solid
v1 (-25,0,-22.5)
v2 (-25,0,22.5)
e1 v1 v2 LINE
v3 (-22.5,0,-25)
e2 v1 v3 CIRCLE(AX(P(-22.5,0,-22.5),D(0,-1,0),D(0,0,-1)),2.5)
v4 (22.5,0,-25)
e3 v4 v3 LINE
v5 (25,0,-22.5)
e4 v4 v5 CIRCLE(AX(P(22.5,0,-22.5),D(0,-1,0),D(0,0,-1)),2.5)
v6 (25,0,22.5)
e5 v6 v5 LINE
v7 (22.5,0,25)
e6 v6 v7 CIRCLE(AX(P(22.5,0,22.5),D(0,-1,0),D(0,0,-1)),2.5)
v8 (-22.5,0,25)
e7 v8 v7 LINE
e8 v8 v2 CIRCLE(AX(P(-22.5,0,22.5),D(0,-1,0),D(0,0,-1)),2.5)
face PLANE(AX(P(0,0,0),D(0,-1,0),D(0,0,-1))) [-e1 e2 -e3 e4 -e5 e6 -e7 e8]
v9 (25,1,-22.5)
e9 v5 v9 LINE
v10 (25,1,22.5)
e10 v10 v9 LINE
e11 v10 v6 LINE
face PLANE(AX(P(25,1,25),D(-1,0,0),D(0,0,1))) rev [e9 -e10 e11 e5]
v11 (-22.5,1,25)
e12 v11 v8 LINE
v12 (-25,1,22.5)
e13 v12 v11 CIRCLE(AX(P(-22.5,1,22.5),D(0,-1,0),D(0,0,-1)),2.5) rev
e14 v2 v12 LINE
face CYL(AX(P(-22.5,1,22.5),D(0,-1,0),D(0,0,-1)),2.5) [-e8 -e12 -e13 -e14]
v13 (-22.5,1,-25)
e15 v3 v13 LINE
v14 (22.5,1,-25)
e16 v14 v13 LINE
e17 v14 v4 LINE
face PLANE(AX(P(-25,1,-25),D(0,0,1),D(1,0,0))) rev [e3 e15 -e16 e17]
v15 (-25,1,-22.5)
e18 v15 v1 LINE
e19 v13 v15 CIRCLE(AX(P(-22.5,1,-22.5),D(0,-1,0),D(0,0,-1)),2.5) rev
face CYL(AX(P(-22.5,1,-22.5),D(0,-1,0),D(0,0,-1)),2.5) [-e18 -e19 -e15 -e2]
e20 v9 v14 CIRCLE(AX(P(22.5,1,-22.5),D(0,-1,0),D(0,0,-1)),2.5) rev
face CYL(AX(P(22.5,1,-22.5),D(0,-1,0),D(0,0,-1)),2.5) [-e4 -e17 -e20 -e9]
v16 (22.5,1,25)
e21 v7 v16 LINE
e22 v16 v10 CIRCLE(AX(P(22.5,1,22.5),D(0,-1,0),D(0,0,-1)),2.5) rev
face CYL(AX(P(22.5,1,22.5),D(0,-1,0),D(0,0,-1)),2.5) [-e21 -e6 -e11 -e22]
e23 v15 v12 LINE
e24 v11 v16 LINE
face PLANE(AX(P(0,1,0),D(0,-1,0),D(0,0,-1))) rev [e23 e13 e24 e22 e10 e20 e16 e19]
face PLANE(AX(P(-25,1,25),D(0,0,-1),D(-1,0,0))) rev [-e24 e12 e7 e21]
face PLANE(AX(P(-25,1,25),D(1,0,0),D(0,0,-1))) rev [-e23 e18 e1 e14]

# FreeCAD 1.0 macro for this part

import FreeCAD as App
import Part
import Sketcher
Q = App.Units.Quantity


def edges_at(feature, points):
    """Names of the edges that pass closest to the given points."""
    edges = feature.Shape.Edges
    near = lambda p: min(range(len(edges)), key=lambda i: edges[i].distToShape(Part.Vertex(*p))[0])
    return sorted({f"Edge{near(p) + 1}" for p in points})

doc = App.newDocument("Part")
body = doc.addObject("PartDesign::Body", "Body")

# Sketch on XZ plane
sketch1 = body.newObject("Sketcher::SketchObject", "Sketch")
sketch1.AttachmentSupport = (doc.getObject("XZ_Plane"), [""])
sketch1.MapMode = "FlatFace"
sketch1.addGeometry([
    Part.LineSegment(App.Vector(-25, -25, 0), App.Vector(-25, 25, 0)),
    Part.LineSegment(App.Vector(-25, 25, 0), App.Vector(25, 25, 0)),
    Part.LineSegment(App.Vector(25, 25, 0), App.Vector(25, -25, 0)),
    Part.LineSegment(App.Vector(25, -25, 0), App.Vector(-25, -25, 0)),
], False)
sketch1.addConstraint([
    Sketcher.Constraint("Coincident", 0, 2, 1, 1),
    Sketcher.Constraint("Coincident", 1, 2, 2, 1),
    Sketcher.Constraint("Coincident", 2, 2, 3, 1),
    Sketcher.Constraint("Coincident", 3, 2, 0, 1),
    Sketcher.Constraint("Vertical", 0),
    Sketcher.Constraint("Horizontal", 1),
    Sketcher.Constraint("Vertical", 2),
    Sketcher.Constraint("Horizontal", 3),
    Sketcher.Constraint("Symmetric", 0, 2, 2, 2, -1, 1),
    Sketcher.Constraint("Equal", 3, 0),
    Sketcher.Constraint("DistanceX", 1, 1, 1, 2, Q("50 mm")),
])
pad1 = body.newObject("PartDesign::Pad", "Pad")
pad1.Profile = sketch1
pad1.Length = 1
pad1.Reversed = True
doc.recompute()

fillet = body.newObject("PartDesign::Fillet", "Fillet")
fillet.Base = (pad1, edges_at(pad1, [
    (25, 0.5, 25),
    (-25, 0.5, 25),
    (-25, 0.5, -25),
    (25, 0.5, -25),
]))
fillet.Radius = 2.5

doc.recompute()
